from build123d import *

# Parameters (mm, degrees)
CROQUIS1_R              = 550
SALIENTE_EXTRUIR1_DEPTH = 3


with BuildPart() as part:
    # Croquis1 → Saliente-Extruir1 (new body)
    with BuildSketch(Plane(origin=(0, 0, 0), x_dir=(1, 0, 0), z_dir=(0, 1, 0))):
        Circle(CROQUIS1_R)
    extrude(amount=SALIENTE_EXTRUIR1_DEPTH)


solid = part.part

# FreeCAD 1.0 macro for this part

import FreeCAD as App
import Part
import Sketcher

V = App.Vector
Q = App.Units.Quantity

doc = App.newDocument("Part")
body = doc.addObject("PartDesign::Body", "Body")

sketch1 = body.newObject("Sketcher::SketchObject", "Sketch")
sketch1.AttachmentSupport = (doc.getObject("XZ_Plane"), [""])
sketch1.MapMode = "FlatFace"
sketch1.addGeometry(Part.Circle(V(0, 0, 0), V(0, 0, 1), 550), False)
sketch1.addConstraint([
    Sketcher.Constraint("Coincident", 0, 3, -1, 1),
    Sketcher.Constraint("Diameter", 0, Q("1100 mm")),
])
pad1 = body.newObject("PartDesign::Pad", "Pad")
pad1.Profile = sketch1
pad1.Length = 3
pad1.Reversed = True

doc.recompute()
